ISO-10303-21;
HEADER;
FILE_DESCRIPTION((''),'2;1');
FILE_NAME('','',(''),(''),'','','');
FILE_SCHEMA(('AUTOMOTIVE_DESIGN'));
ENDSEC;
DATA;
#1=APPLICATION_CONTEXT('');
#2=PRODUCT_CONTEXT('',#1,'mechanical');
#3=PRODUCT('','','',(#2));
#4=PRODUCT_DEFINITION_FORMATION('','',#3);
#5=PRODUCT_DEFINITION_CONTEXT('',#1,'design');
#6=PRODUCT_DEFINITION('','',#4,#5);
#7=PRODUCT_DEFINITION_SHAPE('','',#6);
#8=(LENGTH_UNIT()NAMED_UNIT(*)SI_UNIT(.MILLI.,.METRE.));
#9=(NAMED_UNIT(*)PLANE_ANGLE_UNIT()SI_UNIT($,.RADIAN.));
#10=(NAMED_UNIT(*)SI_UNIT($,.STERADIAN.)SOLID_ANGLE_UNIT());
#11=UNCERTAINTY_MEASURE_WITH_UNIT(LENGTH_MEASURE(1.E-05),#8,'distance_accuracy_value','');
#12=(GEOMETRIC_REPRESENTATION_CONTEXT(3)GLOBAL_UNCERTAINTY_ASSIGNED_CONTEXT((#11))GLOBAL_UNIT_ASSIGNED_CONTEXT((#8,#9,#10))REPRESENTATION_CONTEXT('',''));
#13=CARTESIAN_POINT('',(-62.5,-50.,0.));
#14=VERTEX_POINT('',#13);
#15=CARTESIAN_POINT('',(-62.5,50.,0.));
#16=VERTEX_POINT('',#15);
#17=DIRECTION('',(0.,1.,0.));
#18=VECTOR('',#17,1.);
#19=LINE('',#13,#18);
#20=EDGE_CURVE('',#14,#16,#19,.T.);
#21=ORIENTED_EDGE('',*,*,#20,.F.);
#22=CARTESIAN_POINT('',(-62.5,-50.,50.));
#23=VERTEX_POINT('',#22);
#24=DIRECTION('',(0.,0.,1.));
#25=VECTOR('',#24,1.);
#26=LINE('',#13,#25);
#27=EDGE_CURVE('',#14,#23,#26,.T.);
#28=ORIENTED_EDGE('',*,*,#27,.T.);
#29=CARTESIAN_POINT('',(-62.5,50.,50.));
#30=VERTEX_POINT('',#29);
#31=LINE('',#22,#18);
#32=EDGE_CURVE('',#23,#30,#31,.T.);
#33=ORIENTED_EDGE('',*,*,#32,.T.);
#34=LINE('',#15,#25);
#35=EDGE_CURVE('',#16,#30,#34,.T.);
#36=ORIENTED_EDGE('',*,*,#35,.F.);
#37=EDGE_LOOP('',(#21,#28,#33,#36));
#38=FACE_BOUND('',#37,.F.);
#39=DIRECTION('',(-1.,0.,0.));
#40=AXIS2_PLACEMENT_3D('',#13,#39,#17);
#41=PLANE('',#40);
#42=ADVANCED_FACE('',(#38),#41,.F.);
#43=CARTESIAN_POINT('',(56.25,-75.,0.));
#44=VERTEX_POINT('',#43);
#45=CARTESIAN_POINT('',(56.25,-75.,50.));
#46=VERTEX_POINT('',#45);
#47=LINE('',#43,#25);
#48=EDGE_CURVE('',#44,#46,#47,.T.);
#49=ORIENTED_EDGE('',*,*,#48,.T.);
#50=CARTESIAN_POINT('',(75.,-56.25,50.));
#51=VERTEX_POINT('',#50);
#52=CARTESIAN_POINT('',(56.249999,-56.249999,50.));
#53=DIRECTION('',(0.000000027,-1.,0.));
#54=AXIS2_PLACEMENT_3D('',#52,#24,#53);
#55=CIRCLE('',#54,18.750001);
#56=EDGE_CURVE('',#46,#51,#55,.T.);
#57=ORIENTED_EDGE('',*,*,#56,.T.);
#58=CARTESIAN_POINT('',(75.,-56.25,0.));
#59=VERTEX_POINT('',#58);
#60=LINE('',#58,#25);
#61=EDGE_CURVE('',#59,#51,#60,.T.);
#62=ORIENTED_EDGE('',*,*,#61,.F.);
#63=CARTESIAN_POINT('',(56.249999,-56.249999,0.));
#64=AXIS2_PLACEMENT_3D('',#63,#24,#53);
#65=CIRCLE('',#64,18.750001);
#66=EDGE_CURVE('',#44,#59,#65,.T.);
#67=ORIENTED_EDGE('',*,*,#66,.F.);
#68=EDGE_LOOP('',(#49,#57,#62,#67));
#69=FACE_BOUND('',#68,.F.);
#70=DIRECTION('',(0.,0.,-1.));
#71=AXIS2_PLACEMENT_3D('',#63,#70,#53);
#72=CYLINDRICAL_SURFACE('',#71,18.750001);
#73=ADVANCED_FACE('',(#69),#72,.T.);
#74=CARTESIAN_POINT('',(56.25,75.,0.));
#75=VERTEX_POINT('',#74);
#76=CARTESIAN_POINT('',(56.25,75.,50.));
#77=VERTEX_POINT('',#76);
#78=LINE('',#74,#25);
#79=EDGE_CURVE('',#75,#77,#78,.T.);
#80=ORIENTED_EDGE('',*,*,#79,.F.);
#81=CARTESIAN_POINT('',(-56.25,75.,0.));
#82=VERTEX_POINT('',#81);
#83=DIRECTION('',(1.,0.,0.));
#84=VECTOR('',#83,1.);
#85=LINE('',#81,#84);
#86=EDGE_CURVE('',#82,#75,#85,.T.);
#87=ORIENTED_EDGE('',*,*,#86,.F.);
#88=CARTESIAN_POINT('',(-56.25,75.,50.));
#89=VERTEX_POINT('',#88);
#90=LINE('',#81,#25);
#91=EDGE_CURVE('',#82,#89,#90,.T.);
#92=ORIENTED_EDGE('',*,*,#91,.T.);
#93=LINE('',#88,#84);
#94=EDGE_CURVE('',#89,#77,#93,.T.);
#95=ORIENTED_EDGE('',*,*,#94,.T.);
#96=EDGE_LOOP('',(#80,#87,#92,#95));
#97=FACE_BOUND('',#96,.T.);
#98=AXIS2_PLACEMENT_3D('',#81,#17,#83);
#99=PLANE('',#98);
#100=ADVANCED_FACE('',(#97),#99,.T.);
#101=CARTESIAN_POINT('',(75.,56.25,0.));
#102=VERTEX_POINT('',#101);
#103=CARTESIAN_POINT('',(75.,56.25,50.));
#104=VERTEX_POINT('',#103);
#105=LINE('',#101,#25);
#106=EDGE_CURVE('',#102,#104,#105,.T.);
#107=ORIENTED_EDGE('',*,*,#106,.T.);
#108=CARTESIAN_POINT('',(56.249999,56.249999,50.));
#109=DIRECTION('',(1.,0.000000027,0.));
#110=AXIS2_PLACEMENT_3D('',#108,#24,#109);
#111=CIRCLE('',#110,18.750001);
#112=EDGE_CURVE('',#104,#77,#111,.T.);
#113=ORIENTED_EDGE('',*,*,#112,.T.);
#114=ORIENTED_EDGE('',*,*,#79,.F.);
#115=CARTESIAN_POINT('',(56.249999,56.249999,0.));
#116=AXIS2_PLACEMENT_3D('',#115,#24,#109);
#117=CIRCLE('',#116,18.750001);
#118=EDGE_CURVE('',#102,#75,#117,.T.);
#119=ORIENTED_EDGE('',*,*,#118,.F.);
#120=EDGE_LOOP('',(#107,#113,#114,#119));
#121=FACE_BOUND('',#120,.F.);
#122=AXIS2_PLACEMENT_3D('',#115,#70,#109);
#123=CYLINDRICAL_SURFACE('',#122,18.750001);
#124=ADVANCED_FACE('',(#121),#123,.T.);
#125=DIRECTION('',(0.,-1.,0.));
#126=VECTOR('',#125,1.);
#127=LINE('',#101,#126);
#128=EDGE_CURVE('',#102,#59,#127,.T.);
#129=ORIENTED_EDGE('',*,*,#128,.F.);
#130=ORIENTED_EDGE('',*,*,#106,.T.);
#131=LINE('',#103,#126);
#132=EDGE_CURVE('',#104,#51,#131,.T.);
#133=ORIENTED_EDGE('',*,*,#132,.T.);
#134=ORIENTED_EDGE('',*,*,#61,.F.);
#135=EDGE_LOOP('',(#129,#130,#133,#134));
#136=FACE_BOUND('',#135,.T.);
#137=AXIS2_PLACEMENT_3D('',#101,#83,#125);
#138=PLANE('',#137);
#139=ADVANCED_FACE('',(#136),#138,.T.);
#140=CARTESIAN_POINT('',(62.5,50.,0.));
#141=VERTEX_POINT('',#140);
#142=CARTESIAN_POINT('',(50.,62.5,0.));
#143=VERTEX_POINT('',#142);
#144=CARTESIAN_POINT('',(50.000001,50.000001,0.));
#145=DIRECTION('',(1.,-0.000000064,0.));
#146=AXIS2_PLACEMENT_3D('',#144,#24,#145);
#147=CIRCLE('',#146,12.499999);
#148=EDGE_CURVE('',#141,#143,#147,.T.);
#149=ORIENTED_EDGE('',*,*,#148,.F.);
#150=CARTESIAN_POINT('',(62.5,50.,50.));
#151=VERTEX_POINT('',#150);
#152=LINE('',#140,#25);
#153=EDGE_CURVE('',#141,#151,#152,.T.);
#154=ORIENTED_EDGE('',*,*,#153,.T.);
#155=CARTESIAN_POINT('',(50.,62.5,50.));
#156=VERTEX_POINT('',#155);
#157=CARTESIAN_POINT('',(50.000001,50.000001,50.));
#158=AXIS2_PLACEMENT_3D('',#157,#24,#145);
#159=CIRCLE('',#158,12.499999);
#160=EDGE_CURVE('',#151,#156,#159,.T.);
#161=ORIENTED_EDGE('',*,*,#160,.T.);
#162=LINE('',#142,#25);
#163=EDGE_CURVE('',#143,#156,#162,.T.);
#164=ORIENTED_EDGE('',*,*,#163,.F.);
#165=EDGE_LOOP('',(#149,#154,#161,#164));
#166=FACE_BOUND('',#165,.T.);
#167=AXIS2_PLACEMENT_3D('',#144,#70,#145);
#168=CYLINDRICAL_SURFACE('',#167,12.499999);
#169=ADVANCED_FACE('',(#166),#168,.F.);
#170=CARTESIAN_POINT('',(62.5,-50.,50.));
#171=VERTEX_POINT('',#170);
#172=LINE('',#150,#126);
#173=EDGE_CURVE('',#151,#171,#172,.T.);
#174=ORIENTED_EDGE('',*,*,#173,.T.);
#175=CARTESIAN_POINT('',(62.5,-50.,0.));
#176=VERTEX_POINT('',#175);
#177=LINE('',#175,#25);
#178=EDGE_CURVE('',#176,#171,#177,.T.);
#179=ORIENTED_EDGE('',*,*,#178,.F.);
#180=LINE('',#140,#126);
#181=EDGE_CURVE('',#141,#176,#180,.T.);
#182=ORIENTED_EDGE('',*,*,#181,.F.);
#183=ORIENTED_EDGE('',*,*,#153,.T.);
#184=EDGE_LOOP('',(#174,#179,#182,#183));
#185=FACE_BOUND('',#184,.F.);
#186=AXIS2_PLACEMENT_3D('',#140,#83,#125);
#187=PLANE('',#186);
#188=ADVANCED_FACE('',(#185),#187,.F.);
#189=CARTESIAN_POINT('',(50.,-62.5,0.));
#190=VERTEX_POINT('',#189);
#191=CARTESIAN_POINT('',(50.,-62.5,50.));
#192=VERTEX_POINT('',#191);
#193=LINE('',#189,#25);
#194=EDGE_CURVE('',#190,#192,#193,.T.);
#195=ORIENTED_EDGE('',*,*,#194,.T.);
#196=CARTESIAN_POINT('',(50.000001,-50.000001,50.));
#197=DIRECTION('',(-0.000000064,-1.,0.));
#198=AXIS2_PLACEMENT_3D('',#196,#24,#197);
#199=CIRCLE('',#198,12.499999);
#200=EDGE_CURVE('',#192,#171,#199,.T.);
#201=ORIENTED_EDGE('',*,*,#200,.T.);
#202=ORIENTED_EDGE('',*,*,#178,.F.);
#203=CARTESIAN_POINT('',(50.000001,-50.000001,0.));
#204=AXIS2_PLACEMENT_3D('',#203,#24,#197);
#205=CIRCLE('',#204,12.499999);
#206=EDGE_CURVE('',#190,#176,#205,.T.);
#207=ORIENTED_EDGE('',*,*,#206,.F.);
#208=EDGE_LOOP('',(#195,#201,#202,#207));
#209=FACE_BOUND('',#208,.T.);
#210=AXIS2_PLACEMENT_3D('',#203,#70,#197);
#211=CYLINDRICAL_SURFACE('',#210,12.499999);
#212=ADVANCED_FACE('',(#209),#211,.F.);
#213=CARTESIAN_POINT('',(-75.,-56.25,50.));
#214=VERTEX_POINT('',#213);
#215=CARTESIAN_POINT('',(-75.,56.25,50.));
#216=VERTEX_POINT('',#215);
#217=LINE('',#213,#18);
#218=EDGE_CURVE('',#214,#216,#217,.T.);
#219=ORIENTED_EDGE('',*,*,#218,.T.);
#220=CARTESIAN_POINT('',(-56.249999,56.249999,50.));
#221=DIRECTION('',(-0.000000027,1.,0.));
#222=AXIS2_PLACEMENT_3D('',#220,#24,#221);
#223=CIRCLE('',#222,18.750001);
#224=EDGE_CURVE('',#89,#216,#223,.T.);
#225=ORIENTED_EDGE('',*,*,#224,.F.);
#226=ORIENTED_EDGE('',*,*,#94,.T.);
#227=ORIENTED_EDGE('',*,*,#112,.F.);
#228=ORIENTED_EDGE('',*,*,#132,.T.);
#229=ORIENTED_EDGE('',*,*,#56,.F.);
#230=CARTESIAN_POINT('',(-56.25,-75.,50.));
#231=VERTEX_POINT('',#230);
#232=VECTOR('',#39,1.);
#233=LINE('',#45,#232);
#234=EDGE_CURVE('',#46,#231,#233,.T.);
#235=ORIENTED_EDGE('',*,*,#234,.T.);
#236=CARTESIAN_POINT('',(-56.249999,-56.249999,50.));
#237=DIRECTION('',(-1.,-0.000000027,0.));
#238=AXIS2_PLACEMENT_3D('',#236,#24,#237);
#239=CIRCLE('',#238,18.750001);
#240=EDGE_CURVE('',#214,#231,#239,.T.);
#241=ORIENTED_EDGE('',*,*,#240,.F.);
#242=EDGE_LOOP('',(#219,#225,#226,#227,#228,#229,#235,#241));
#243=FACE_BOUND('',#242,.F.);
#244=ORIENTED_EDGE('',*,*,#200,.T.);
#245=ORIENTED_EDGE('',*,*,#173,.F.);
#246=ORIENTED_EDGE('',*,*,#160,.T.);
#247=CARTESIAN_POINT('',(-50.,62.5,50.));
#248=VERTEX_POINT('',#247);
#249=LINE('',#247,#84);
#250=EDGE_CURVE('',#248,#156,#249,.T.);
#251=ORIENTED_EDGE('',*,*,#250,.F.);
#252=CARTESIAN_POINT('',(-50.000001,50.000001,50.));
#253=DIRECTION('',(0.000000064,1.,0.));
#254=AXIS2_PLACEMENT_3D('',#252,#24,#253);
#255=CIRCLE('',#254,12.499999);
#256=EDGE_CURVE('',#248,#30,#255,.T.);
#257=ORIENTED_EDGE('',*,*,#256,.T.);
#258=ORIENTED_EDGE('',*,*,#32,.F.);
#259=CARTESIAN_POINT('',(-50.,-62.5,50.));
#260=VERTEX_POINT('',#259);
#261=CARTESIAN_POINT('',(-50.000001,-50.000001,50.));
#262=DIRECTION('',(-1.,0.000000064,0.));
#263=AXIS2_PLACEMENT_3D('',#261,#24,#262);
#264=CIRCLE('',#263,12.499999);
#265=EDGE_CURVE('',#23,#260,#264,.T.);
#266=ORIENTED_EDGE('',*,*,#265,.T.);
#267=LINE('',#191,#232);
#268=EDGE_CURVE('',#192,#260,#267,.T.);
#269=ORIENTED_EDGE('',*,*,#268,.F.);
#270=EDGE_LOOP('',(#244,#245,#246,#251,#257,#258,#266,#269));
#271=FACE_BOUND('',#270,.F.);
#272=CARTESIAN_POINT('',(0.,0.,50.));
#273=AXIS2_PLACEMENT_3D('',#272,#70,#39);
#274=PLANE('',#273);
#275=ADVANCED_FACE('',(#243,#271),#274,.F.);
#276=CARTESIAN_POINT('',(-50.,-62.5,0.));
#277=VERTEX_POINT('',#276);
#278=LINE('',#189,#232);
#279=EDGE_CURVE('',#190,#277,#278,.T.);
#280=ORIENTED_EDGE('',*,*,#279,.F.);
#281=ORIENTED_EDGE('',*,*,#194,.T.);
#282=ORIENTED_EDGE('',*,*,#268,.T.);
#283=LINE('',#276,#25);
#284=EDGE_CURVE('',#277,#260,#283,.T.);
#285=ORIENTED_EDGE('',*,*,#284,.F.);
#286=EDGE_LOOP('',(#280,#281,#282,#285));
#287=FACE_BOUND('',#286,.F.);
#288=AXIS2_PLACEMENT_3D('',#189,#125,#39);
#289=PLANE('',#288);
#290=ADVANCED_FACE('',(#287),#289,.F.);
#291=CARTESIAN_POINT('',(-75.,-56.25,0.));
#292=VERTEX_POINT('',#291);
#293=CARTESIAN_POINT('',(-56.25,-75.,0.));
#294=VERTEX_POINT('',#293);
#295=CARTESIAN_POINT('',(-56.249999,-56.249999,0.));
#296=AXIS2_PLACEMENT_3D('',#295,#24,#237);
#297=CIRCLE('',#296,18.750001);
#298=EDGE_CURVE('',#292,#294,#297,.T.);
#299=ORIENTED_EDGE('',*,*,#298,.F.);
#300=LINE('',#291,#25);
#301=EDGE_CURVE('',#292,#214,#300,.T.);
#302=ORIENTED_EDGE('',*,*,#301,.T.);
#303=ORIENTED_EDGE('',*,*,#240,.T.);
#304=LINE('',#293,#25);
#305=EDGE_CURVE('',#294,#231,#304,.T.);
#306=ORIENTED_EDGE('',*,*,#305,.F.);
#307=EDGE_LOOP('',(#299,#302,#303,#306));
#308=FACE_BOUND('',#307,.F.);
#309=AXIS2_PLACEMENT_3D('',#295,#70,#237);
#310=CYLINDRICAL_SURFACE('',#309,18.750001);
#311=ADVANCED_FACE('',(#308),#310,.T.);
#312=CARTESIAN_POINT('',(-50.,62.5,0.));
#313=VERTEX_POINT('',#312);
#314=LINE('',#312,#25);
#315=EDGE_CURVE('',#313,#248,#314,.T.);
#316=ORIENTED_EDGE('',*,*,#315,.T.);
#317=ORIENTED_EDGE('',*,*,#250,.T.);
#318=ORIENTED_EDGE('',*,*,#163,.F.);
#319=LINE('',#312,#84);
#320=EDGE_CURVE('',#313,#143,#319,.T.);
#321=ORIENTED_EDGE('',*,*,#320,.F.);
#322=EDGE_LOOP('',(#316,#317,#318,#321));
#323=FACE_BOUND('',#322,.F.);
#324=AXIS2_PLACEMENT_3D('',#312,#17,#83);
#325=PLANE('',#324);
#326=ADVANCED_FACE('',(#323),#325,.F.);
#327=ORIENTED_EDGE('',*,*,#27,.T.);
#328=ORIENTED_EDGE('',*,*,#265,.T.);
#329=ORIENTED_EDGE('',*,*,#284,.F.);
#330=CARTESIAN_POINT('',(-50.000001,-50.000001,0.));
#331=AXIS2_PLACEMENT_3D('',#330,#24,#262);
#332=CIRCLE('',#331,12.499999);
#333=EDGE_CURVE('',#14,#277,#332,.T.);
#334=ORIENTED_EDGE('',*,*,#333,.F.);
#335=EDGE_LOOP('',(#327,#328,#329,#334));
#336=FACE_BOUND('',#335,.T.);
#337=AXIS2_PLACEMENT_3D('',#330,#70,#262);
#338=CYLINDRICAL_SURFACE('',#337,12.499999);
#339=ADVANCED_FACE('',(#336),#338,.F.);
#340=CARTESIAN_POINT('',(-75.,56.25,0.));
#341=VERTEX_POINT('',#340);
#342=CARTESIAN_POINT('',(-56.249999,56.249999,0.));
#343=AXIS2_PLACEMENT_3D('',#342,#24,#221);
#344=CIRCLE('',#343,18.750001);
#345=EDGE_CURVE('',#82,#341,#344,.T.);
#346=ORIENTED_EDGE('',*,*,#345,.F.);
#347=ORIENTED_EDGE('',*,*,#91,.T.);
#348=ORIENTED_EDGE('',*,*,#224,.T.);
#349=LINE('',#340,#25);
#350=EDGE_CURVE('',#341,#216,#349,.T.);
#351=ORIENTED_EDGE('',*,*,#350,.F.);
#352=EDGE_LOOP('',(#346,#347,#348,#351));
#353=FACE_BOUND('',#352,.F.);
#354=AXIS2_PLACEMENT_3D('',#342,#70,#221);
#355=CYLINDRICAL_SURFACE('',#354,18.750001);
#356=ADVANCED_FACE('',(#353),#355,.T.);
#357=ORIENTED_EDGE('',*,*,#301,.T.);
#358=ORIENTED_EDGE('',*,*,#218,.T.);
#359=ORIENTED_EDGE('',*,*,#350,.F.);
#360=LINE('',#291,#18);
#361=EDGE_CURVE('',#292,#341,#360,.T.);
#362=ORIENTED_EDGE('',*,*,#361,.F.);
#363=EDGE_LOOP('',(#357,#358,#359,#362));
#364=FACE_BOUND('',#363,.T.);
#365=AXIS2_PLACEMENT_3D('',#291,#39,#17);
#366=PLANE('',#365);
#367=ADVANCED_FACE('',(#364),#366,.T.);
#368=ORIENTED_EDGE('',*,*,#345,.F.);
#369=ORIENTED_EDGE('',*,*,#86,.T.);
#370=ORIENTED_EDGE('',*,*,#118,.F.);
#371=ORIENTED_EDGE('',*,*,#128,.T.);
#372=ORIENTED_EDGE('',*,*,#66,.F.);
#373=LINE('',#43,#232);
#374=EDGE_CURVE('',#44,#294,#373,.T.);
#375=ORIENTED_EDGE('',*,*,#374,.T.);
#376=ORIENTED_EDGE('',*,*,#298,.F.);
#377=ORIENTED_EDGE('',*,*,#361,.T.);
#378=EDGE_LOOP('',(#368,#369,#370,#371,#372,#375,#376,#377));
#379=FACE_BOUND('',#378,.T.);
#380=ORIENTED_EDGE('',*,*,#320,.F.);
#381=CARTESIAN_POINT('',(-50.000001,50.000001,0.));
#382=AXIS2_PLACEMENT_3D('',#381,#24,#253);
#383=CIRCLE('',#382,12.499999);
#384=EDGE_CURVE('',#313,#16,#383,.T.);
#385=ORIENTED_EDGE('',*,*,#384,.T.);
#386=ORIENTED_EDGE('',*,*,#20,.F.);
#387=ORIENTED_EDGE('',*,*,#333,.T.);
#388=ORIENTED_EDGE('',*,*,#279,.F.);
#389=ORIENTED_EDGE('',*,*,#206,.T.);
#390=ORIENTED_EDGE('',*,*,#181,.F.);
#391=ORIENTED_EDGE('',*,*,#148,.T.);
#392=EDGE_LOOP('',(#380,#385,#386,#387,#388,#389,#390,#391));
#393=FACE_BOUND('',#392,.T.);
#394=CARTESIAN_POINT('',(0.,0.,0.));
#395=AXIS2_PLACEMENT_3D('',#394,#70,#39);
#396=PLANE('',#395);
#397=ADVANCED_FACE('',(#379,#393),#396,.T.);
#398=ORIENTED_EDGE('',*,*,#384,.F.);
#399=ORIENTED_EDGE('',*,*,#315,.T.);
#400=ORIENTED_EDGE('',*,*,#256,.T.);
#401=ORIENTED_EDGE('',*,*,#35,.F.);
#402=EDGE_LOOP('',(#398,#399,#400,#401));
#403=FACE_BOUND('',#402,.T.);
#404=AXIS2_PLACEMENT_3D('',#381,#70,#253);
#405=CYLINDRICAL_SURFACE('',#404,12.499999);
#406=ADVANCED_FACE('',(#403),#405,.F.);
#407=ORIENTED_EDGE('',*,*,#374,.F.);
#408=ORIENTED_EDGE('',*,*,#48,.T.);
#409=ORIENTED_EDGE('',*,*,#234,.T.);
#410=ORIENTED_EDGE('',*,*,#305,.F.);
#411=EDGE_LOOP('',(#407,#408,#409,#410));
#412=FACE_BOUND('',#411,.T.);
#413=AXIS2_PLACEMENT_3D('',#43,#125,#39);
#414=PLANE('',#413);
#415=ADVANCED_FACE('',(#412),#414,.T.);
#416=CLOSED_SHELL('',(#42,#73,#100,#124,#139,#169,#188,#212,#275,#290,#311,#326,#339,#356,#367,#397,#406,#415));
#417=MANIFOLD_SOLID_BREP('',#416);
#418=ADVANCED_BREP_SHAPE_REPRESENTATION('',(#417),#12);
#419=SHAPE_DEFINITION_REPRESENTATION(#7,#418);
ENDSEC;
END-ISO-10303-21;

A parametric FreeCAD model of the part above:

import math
import FreeCAD as App
import Part
import Sketcher

V = App.Vector
Q = App.Units.Quantity

doc = App.newDocument("Part")
body = doc.addObject("PartDesign::Body", "Body")

sketch1 = doc.addObject("Sketcher::SketchObject", "Sketch")
body.addObject(sketch1)
sketch1.AttachmentSupport = (doc.XY_Plane, [""])
sketch1.MapMode = "FlatFace"
sketch1.addGeometry([
    Part.LineSegment(V(56.25, 75, 0), V(-56.25, 75, 0)),
    Part.ArcOfCircle(Part.Circle(V(-56.249999, 56.249999, 0), V(0, 0, 1), 18.750001), math.radians(90.000002), math.radians(179.999998)),
    Part.LineSegment(V(-75, 56.25, 0), V(-75, -56.25, 0)),
    Part.ArcOfCircle(Part.Circle(V(-56.249999, -56.249999, 0), V(0, 0, 1), 18.750001), math.radians(-179.999998), math.radians(-90.000002)),
    Part.LineSegment(V(-56.25, -75, 0), V(56.25, -75, 0)),
    Part.ArcOfCircle(Part.Circle(V(56.249999, -56.249999, 0), V(0, 0, 1), 18.750001), math.radians(-89.999998), math.radians(-0.000002)),
    Part.LineSegment(V(75, -56.25, 0), V(75, 56.25, 0)),
    Part.ArcOfCircle(Part.Circle(V(56.249999, 56.249999, 0), V(0, 0, 1), 18.750001), math.radians(0.000002), math.radians(89.999998)),
    Part.LineSegment(V(-50, 62.5, 0), V(50, 62.5, 0)),
    Part.ArcOfCircle(Part.Circle(V(50.000001, 50.000001, 0), V(0, 0, 1), 12.499999), math.radians(-0.000004), math.radians(90.000004)),
    Part.LineSegment(V(62.5, 50, 0), V(62.5, -50, 0)),
    Part.ArcOfCircle(Part.Circle(V(50.000001, -50.000001, 0), V(0, 0, 1), 12.499999), math.radians(-90.000004), math.radians(0.000004)),
    Part.LineSegment(V(50, -62.5, 0), V(-50, -62.5, 0)),
    Part.ArcOfCircle(Part.Circle(V(-50.000001, -50.000001, 0), V(0, 0, 1), 12.499999), math.radians(179.999996), math.radians(270.000004)),
    Part.LineSegment(V(-62.5, -50, 0), V(-62.5, 50, 0)),
    Part.ArcOfCircle(Part.Circle(V(-50.000001, 50.000001, 0), V(0, 0, 1), 12.499999), math.radians(89.999996), math.radians(180.000004)),
], False)
sketch1.addConstraint([
    Sketcher.Constraint("Tangent", 0, 2, 1, 1),
    Sketcher.Constraint("Tangent", 1, 2, 2, 1),
    Sketcher.Constraint("Tangent", 2, 2, 3, 1),
    Sketcher.Constraint("Tangent", 3, 2, 4, 1),
    Sketcher.Constraint("Tangent", 4, 2, 5, 1),
    Sketcher.Constraint("Tangent", 5, 2, 6, 1),
    Sketcher.Constraint("Tangent", 6, 2, 7, 1),
    Sketcher.Constraint("Tangent", 7, 2, 0, 1),
    Sketcher.Constraint("Tangent", 8, 2, 9, 2),
    Sketcher.Constraint("Tangent", 9, 1, 10, 1),
    Sketcher.Constraint("Tangent", 10, 2, 11, 2),
    Sketcher.Constraint("Tangent", 11, 1, 12, 1),
    Sketcher.Constraint("Tangent", 12, 2, 13, 2),
    Sketcher.Constraint("Tangent", 13, 1, 14, 1),
    Sketcher.Constraint("Tangent", 14, 2, 15, 2),
    Sketcher.Constraint("Tangent", 15, 1, 8, 1),
    Sketcher.Constraint("Horizontal", 0),
    Sketcher.Constraint("Vertical", 2),
    Sketcher.Constraint("Horizontal", 4),
    Sketcher.Constraint("Vertical", 6),
    Sketcher.Constraint("Horizontal", 8),
    Sketcher.Constraint("Vertical", 10),
    Sketcher.Constraint("Horizontal", 12),
    Sketcher.Constraint("Vertical", 14),
    Sketcher.Constraint("Equal", 1, 3),
    Sketcher.Constraint("Equal", 3, 5),
    Sketcher.Constraint("Equal", 5, 7),
    Sketcher.Constraint("Equal", 9, 11),
    Sketcher.Constraint("Equal", 11, 13),
    Sketcher.Constraint("Equal", 13, 15),
    Sketcher.Constraint("Symmetric", 1, 3, 5, 3, -1, 1),
    Sketcher.Constraint("Symmetric", 9, 3, 13, 3, -1, 1),
    Sketcher.Constraint("Equal", 4, 2),
    Sketcher.Constraint("Equal", 12, 10),
    Sketcher.Constraint("Radius", 9, Q("12.499999 mm")),
    Sketcher.Constraint("DistanceX", 8, 1, 8, 2, Q("100 mm")),
    Sketcher.Constraint("Radius", 1, Q("18.750001 mm")),
    Sketcher.Constraint("DistanceX", 0, 2, 0, 1, Q("112.5 mm")),
])
pad1 = doc.addObject("PartDesign::Pad", "Pad")
body.addObject(pad1)
pad1.Profile = sketch1
pad1.Length = 50

doc.recompute()
